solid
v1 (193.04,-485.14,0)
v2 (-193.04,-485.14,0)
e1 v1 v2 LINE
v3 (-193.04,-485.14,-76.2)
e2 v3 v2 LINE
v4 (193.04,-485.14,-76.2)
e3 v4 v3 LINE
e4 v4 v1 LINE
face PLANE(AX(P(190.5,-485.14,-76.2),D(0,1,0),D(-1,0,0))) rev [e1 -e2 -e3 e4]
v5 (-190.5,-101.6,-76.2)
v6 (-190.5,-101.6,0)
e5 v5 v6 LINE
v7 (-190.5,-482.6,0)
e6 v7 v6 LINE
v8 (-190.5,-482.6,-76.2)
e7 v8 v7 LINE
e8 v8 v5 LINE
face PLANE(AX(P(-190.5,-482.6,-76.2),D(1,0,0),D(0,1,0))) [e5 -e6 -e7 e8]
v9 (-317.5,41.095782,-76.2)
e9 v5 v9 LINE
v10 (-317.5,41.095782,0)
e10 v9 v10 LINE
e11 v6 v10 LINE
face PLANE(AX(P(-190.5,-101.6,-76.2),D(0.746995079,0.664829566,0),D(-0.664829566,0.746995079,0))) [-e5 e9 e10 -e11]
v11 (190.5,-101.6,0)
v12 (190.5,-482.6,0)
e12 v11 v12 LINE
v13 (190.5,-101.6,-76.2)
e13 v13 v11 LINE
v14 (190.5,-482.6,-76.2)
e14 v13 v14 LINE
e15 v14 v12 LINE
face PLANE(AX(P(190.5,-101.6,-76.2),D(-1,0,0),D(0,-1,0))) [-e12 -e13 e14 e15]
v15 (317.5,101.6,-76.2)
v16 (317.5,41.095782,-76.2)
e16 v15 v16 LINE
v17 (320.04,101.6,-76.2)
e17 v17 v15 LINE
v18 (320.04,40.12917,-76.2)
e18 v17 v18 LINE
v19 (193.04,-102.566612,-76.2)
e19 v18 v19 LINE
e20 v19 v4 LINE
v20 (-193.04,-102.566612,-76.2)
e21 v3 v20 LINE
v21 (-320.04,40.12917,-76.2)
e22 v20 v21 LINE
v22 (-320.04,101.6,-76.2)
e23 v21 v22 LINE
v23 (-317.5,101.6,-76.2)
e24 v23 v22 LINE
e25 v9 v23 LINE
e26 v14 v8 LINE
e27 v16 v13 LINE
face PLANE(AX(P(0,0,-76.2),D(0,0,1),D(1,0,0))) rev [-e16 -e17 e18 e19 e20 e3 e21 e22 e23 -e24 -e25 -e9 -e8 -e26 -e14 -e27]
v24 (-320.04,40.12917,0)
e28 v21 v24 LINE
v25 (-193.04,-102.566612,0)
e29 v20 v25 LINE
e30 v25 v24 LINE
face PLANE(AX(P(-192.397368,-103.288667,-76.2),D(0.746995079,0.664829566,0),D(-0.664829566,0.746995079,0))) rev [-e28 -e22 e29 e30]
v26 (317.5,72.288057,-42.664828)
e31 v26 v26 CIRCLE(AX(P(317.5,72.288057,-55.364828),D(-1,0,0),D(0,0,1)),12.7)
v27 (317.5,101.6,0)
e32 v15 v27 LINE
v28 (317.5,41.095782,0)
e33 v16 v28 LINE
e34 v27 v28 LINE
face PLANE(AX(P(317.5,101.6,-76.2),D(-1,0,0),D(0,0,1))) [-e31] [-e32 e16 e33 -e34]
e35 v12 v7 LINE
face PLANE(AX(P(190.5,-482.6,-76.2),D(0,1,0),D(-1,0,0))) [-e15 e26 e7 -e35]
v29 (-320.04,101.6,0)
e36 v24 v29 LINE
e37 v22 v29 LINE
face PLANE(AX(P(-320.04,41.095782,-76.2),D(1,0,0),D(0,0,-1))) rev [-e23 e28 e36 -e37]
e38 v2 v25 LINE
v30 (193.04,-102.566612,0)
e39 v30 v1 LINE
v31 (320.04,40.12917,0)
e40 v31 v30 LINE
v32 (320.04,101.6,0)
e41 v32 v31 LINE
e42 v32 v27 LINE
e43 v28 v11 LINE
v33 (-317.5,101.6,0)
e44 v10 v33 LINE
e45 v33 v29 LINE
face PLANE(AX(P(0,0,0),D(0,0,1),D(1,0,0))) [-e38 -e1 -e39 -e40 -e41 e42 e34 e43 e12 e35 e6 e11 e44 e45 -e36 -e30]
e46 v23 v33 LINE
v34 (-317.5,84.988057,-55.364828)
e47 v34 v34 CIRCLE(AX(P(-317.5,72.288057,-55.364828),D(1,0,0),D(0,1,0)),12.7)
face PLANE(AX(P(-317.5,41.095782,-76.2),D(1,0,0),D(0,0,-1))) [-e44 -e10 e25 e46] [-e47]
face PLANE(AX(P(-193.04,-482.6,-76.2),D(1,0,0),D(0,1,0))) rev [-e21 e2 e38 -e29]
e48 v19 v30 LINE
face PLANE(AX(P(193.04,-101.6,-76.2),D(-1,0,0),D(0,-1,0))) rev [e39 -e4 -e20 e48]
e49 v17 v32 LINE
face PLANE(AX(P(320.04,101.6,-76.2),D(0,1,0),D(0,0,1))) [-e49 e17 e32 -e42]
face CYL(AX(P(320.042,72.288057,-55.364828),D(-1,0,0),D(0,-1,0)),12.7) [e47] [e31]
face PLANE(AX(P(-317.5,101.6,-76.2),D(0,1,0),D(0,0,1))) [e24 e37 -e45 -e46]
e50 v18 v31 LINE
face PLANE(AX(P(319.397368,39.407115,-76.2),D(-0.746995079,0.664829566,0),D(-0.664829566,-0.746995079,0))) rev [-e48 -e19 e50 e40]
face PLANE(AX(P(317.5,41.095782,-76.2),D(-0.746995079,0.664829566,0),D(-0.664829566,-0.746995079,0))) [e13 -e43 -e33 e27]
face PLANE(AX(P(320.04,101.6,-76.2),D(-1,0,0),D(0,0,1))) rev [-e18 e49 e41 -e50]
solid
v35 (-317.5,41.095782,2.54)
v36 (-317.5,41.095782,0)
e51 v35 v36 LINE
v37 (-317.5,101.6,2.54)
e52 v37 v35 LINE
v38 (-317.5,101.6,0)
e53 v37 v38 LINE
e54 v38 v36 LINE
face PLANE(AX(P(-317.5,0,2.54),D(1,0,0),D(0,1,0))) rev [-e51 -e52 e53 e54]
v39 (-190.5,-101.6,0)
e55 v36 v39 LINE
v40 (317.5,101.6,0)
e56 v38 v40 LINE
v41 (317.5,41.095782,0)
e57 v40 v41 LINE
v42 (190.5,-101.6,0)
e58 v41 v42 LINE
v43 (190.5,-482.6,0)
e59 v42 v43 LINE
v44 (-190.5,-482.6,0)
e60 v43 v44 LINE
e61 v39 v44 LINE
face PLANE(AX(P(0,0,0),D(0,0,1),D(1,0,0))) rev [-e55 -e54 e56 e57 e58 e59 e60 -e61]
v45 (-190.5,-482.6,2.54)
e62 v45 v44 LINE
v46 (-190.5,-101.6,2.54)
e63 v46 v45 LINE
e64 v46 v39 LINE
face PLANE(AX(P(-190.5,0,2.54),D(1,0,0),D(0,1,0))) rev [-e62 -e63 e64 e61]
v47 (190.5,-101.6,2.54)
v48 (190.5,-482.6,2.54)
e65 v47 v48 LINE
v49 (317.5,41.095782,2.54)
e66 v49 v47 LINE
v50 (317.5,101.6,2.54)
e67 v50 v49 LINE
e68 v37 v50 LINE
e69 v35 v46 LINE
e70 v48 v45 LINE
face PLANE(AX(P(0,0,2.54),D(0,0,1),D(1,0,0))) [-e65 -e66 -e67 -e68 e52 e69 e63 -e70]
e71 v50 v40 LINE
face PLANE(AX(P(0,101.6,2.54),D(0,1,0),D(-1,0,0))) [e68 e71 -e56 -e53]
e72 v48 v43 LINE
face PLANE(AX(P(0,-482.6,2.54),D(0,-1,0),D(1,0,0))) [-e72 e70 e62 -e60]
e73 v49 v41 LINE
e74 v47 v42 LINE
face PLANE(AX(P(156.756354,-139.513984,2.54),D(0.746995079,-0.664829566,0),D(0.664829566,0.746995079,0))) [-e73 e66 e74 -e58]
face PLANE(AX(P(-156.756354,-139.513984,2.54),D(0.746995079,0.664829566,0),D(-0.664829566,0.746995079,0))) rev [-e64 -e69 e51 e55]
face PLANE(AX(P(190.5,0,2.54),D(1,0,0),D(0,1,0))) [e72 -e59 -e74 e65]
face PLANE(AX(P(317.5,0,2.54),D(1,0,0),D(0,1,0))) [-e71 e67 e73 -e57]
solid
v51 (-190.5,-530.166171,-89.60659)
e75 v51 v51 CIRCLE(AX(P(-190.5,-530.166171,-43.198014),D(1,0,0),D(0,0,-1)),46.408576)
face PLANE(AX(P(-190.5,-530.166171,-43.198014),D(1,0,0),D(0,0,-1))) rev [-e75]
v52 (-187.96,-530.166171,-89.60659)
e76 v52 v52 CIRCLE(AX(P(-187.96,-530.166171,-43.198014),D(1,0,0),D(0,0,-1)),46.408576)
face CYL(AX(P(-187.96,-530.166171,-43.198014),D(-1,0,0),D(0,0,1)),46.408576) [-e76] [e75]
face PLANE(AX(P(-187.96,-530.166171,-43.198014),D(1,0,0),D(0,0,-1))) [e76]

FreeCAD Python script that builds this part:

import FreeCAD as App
import Part
import Sketcher

V = App.Vector
Q = App.Units.Quantity

doc = App.newDocument("Part")
body = doc.addObject("PartDesign::Body", "Body")

# Sketch on XY plane
sketch1 = doc.addObject("Sketcher::SketchObject", "Sketch")
body.addObject(sketch1)
sketch1.AttachmentSupport = (doc.XY_Plane, [""])
sketch1.MapMode = "FlatFace"
sketch1.addGeometry([
    Part.LineSegment(V(190, -102, 0), V(318, 41, 0)),  # 0
    Part.LineSegment(V(318, 41, 0), V(318, 102, 0)),  # 1
    Part.LineSegment(V(318, 102, 0), V(-318, 102, 0)),  # 2
    Part.LineSegment(V(-318, 102, 0), V(-318, 41, 0)),  # 3
    Part.LineSegment(V(-318, 41, 0), V(-190, -102, 0)),  # 4
    Part.LineSegment(V(-190, -102, 0), V(-190, -483, 0)),  # 5
    Part.LineSegment(V(-190, -483, 0), V(190, -483, 0)),  # 6
    Part.LineSegment(V(190, -483, 0), V(190, -102, 0)),  # 7
], False)
sketch1.addConstraint([
    Sketcher.Constraint("Coincident", 0, 2, 1, 1),
    Sketcher.Constraint("Coincident", 1, 2, 2, 1),
    Sketcher.Constraint("Coincident", 2, 2, 3, 1),
    Sketcher.Constraint("Coincident", 3, 2, 4, 1),
    Sketcher.Constraint("Coincident", 4, 2, 5, 1),
    Sketcher.Constraint("Coincident", 5, 2, 6, 1),
    Sketcher.Constraint("Coincident", 6, 2, 7, 1),
    Sketcher.Constraint("Coincident", 7, 2, 0, 1),
    Sketcher.Constraint("Vertical", 1),
    Sketcher.Constraint("Horizontal", 2),
    Sketcher.Constraint("Vertical", 3),
    Sketcher.Constraint("Vertical", 5),
    Sketcher.Constraint("Horizontal", 6),
    Sketcher.Constraint("Vertical", 7),
    Sketcher.Constraint("Symmetric", 0, 2, 3, 2, -2),
    Sketcher.Constraint("Symmetric", 4, 2, 7, 2, -2),
    Sketcher.Constraint("Equal", 6, 5),
    Sketcher.Constraint("DistanceX", 2, 2, 2, 1, Q("25 in")),
    Sketcher.Constraint("DistanceX", 6, 1, 6, 2, Q("15 in")),
    Sketcher.Constraint("DistanceY", -1, 1, 1, 2, Q("4 in")),
    Sketcher.Constraint("DistanceY", 4, 2, -1, 1, Q("4 in")),
    Sketcher.Constraint("Distance", 0, Q("191.026402 mm")),
])
pad1 = doc.addObject("PartDesign::Pad", "Pad")
body.addObject(pad1)
pad1.Profile = sketch1
pad1.Length = Q("0.1 in")
body2 = doc.addObject("PartDesign::Body", "Body001")

# Sketch on XY plane
sketch2 = doc.addObject("Sketcher::SketchObject", "Sketch001")
body2.addObject(sketch2)
sketch2.AttachmentSupport = (doc.getObject("XY_Plane001"), [""])
sketch2.MapMode = "FlatFace"
sketch2.addGeometry([
    Part.LineSegment(V(317.5, 41.1, 0), V(317.5, 101.6, 0)),  # 0
    Part.LineSegment(V(317.5, 101.6, 0), V(320, 101.6, 0)),  # 1
    Part.LineSegment(V(320, 101.6, 0), V(320, 40.1, 0)),  # 2
    Part.LineSegment(V(320, 40.1, 0), V(193, -102.6, 0)),  # 3
    Part.LineSegment(V(193, -102.6, 0), V(193, -485.1, 0)),  # 4
    Part.LineSegment(V(193, -485.1, 0), V(-193, -485.1, 0)),  # 5
    Part.LineSegment(V(-193, -485.1, 0), V(-193, -102.6, 0)),  # 6
    Part.LineSegment(V(-193, -102.6, 0), V(-320, 40.1, 0)),  # 7
    Part.LineSegment(V(-320, 40.1, 0), V(-320, 101.6, 0)),  # 8
    Part.LineSegment(V(-320, 101.6, 0), V(-317.5, 101.6, 0)),  # 9
    Part.LineSegment(V(-317.5, 101.6, 0), V(-317.5, 41.1, 0)),  # 10
    Part.LineSegment(V(-317.5, 41.1, 0), V(-190.5, -101.6, 0)),  # 11
    Part.LineSegment(V(-190.5, -101.6, 0), V(-190.5, -482.6, 0)),  # 12
    Part.LineSegment(V(-190.5, -482.6, 0), V(190.5, -482.6, 0)),  # 13
    Part.LineSegment(V(190.5, -482.6, 0), V(190.5, -101.6, 0)),  # 14
    Part.LineSegment(V(190.5, -101.6, 0), V(317.5, 41.1, 0)),  # 15
], False)
sketch2.addConstraint([
    Sketcher.Constraint("Coincident", 0, 2, 1, 1),
    Sketcher.Constraint("Coincident", 1, 2, 2, 1),
    Sketcher.Constraint("Coincident", 2, 2, 3, 1),
    Sketcher.Constraint("Coincident", 3, 2, 4, 1),
    Sketcher.Constraint("Coincident", 4, 2, 5, 1),
    Sketcher.Constraint("Coincident", 5, 2, 6, 1),
    Sketcher.Constraint("Coincident", 6, 2, 7, 1),
    Sketcher.Constraint("Coincident", 7, 2, 8, 1),
    Sketcher.Constraint("Coincident", 8, 2, 9, 1),
    Sketcher.Constraint("Coincident", 9, 2, 10, 1),
    Sketcher.Constraint("Coincident", 10, 2, 11, 1),
    Sketcher.Constraint("Coincident", 11, 2, 12, 1),
    Sketcher.Constraint("Coincident", 12, 2, 13, 1),
    Sketcher.Constraint("Coincident", 13, 2, 14, 1),
    Sketcher.Constraint("Coincident", 14, 2, 15, 1),
    Sketcher.Constraint("Coincident", 15, 2, 0, 1),
    Sketcher.Constraint("Vertical", 0),
    Sketcher.Constraint("Horizontal", 1),
    Sketcher.Constraint("Vertical", 2),
    Sketcher.Constraint("Vertical", 4),
    Sketcher.Constraint("Horizontal", 5),
    Sketcher.Constraint("Vertical", 6),
    Sketcher.Constraint("Vertical", 8),
    Sketcher.Constraint("Horizontal", 9),
    Sketcher.Constraint("Vertical", 10),
    Sketcher.Constraint("Vertical", 12),
    Sketcher.Constraint("Horizontal", 13),
    Sketcher.Constraint("Vertical", 14),
    Sketcher.Constraint("Symmetric", 3, 2, 6, 2, -2),
    Sketcher.Constraint("Symmetric", 2, 2, 7, 2, -2),
    Sketcher.Constraint("Symmetric", 0, 2, 9, 2, -2),
    Sketcher.Constraint("Symmetric", 11, 2, 14, 2, -2),
    Sketcher.Constraint("Parallel", 7, 11),
    Sketcher.Constraint("Parallel", 3, 15),
    Sketcher.Constraint("Equal", 13, 12),
    Sketcher.Constraint("Equal", 7, 11),
    Sketcher.Constraint("DistanceX", 13, 1, 13, 2, Q("15 in")),
    Sketcher.Constraint("DistanceX", 1, 1, 1, 2, Q("0.1 in")),
    Sketcher.Constraint("DistanceY", -1, 1, 0, 2, Q("4 in")),
    Sketcher.Constraint("DistanceY", 11, 2, -1, 1, Q("4 in")),
    Sketcher.Constraint("DistanceX", 3, 2, 2, 2, Q("5 in")),
    Sketcher.Constraint("DistanceY", 4, 2, -1, 1, Q("19.1 in")),
    Sketcher.Constraint("Distance", 3, Q("191.026402 mm")),
    Sketcher.Constraint("DistanceY", 2, 2, 2, 1, Q("61.47083 mm")),
])
pad2 = doc.addObject("PartDesign::Pad", "Pad001")
body2.addObject(pad2)
pad2.Profile = sketch2
pad2.Length = Q("3 in")
pad2.Reversed = True

# Sketch on YZ plane
sketch3 = doc.addObject("Sketcher::SketchObject", "Sketch002")
body2.addObject(sketch3)
sketch3.AttachmentSupport = (doc.getObject("YZ_Plane001"), [""])
sketch3.MapMode = "FlatFace"
sketch3.AttachmentOffset = App.Placement(V(0, 0, -12.5 * 25.4), App.Rotation())
sketch3.addGeometry(Part.Circle(V(72, -55, 0), V(0, 0, 1), 13), False)
sketch3.addConstraint([
    Sketcher.Constraint("Diameter", 0, Q("1 in")),
    Sketcher.Constraint("DistanceY", 0, 3, -1, 1, Q("55.364828 mm")),
    Sketcher.Constraint("DistanceX", -1, 1, 0, 3, Q("72.288057 mm")),
])
pad3 = doc.addObject("PartDesign::Pad", "Pad002")
body2.addObject(pad3)
pad3.Profile = sketch3
pad3.Length = Q("25 in")
body3 = doc.addObject("PartDesign::Body", "Body002")

# Sketch on YZ plane
sketch4 = doc.addObject("Sketcher::SketchObject", "Sketch003")
body3.addObject(sketch4)
sketch4.AttachmentSupport = (doc.getObject("YZ_Plane002"), [""])
sketch4.MapMode = "FlatFace"
sketch4.AttachmentOffset = App.Placement(V(0, 0, -7.5 * 25.4), App.Rotation())
sketch4.addGeometry(Part.Circle(V(-530, -43, 0), V(0, 0, 1), 46), False)
sketch4.addConstraint([
    Sketcher.Constraint("Diameter", 0, Q("92.817152 mm")),
    Sketcher.Constraint("DistanceX", 0, 3, -1, 1, Q("530.166171 mm")),
    Sketcher.Constraint("DistanceY", 0, 3, -1, 1, Q("43.198014 mm")),
])
pad4 = doc.addObject("PartDesign::Pad", "Pad003")
body3.addObject(pad4)
pad4.Profile = sketch4
pad4.Length = Q("0.1 in")

doc.recompute()
